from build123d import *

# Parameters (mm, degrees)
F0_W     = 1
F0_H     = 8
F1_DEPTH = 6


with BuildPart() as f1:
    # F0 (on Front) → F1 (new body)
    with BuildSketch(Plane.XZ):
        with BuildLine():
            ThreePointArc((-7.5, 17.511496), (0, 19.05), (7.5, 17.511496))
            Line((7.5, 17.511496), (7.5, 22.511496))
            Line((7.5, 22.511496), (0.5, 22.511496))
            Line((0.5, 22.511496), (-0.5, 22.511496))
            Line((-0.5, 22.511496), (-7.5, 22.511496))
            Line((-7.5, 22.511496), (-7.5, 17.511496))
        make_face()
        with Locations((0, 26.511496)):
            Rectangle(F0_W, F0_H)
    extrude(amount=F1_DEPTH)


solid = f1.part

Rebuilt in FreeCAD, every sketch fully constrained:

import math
import FreeCAD as App
import Part
import Sketcher

V = App.Vector

doc = App.newDocument("Part")
body = doc.addObject("PartDesign::Body", "Body")

sketch1 = body.newObject("Sketcher::SketchObject", "Sketch")
sketch1.AttachmentSupport = (doc.getObject("XZ_Plane"), [""])
sketch1.MapMode = "FlatFace"
sketch1.addGeometry([
    Part.ArcOfCircle(Part.Circle(V(0, 0, 0), V(0, 0, 1), 19), math.radians(67), math.radians(113)),
    Part.LineSegment(V(7.5, 17.5, 0), V(7.5, 22.5, 0)),
    Part.LineSegment(V(7.5, 22.5, 0), V(0.5, 22.5, 0)),
    Part.LineSegment(V(0.5, 22.5, 0), V(0.5, 30.5, 0)),
    Part.LineSegment(V(0.5, 30.5, 0), V(-0.5, 30.5, 0)),
    Part.LineSegment(V(-0.5, 30.5, 0), V(-0.5, 22.5, 0)),
    Part.LineSegment(V(-0.5, 22.5, 0), V(-7.5, 22.5, 0)),
    Part.LineSegment(V(-7.5, 22.5, 0), V(-7.5, 17.5, 0)),
], False)
sketch1.addConstraint([
    Sketcher.Constraint("Coincident", 0, 1, 1, 1),
    Sketcher.Constraint("Coincident", 1, 2, 2, 1),
    Sketcher.Constraint("Coincident", 2, 2, 3, 1),
    Sketcher.Constraint("Coincident", 3, 2, 4, 1),
    Sketcher.Constraint("Coincident", 4, 2, 5, 1),
    Sketcher.Constraint("Coincident", 5, 2, 6, 1),
    Sketcher.Constraint("Coincident", 6, 2, 7, 1),
    Sketcher.Constraint("Coincident", 7, 2, 0, 2),
    Sketcher.Constraint("Vertical", 1),
    Sketcher.Constraint("Horizontal", 2),
    Sketcher.Constraint("Vertical", 3),
    Sketcher.Constraint("Horizontal", 4),
    Sketcher.Constraint("Vertical", 5),
    Sketcher.Constraint("Horizontal", 6),
    Sketcher.Constraint("Vertical", 7),
    Sketcher.Constraint("Coincident", 0, 3, -1, 1),
    Sketcher.Constraint("Symmetric", 2, 2, 5, 2, -2),
    Sketcher.Constraint("Horizontal", 0, 1, 7, 2),
    Sketcher.Constraint("DistanceX", 2, 2, 2, 1, 7.0),
    Sketcher.Constraint("DistanceX", 4, 2, 4, 1, 1.0),
    Sketcher.Constraint("DistanceY", 1, 1, 1, 2, 5.0),
    Sketcher.Constraint("DistanceY", 3, 1, 3, 2, 8.0),
    Sketcher.Constraint("Radius", 0, 19.049997),
])
pad1 = body.newObject("PartDesign::Pad", "Pad")
pad1.Profile = sketch1
pad1.Length = 6

doc.recompute()
